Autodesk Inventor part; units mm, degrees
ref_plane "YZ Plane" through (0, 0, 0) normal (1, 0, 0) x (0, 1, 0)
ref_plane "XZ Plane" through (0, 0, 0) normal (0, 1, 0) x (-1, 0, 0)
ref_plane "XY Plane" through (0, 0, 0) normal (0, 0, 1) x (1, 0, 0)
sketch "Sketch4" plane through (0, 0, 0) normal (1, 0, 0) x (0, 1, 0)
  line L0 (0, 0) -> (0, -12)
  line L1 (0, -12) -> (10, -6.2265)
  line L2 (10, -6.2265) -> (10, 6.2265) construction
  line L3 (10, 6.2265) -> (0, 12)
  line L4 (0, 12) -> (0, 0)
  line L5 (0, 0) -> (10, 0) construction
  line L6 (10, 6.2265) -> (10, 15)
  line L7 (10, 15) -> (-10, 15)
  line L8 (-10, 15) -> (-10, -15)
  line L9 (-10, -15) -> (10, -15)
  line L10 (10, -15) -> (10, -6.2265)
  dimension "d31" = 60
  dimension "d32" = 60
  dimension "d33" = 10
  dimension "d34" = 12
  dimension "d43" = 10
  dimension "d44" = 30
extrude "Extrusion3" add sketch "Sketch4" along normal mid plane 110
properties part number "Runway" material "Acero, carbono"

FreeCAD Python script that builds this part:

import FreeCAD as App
import Part
import Sketcher

V = App.Vector
Q = App.Units.Quantity

doc = App.newDocument("Part")
body = doc.addObject("PartDesign::Body", "Body")

# Sketch on YZ plane
sketch1 = body.newObject("Sketcher::SketchObject", "Sketch")
sketch1.AttachmentSupport = (doc.getObject("YZ_Plane"), [""])
sketch1.MapMode = "FlatFace"
sketch1.addGeometry(Part.LineSegment(V(0, -12, 0), V(0, 12, 0)), False)
sketch1.addGeometry(Part.LineSegment(V(0, 12, 0), V(10, 6, 0)), False)
sketch1.addGeometry(Part.LineSegment(V(10, 6, 0), V(10, 15, 0)), False)
sketch1.addGeometry(Part.LineSegment(V(10, 15, 0), V(-10, 15, 0)), False)
sketch1.addGeometry(Part.LineSegment(V(-10, 15, 0), V(-10, -15, 0)), False)
sketch1.addGeometry(Part.LineSegment(V(-10, -15, 0), V(10, -15, 0)), False)
sketch1.addGeometry(Part.LineSegment(V(10, -15, 0), V(10, -6, 0)), False)
sketch1.addGeometry(Part.LineSegment(V(10, -6, 0), V(0, -12, 0)), False)
sketch1.addConstraint(Sketcher.Constraint("Coincident", 0, 2, 1, 1))
sketch1.addConstraint(Sketcher.Constraint("Coincident", 1, 2, 2, 1))
sketch1.addConstraint(Sketcher.Constraint("Coincident", 2, 2, 3, 1))
sketch1.addConstraint(Sketcher.Constraint("Coincident", 3, 2, 4, 1))
sketch1.addConstraint(Sketcher.Constraint("Coincident", 4, 2, 5, 1))
sketch1.addConstraint(Sketcher.Constraint("Coincident", 5, 2, 6, 1))
sketch1.addConstraint(Sketcher.Constraint("Coincident", 6, 2, 7, 1))
sketch1.addConstraint(Sketcher.Constraint("Coincident", 7, 2, 0, 1))
sketch1.addConstraint(Sketcher.Constraint("Vertical", 0))
sketch1.addConstraint(Sketcher.Constraint("Vertical", 2))
sketch1.addConstraint(Sketcher.Constraint("Horizontal", 3))
sketch1.addConstraint(Sketcher.Constraint("Vertical", 4))
sketch1.addConstraint(Sketcher.Constraint("Horizontal", 5))
sketch1.addConstraint(Sketcher.Constraint("Vertical", 6))
sketch1.addConstraint(Sketcher.Constraint("Symmetric", 2, 2, 4, 2, -1, 1))
sketch1.addConstraint(Sketcher.Constraint("Symmetric", 0, 2, 7, 2, -1, 1))
sketch1.addConstraint(Sketcher.Constraint("Symmetric", 1, 2, 6, 2, -1))
sketch1.addConstraint(Sketcher.Constraint("DistanceY", 4, 2, 4, 1, 30.0))
sketch1.addConstraint(Sketcher.Constraint("Angle", 1, Q("-30 deg")))
sketch1.addConstraint(Sketcher.Constraint("DistanceY", -1, 1, 0, 2, 12.0))
sketch1.addConstraint(Sketcher.Constraint("DistanceX", -1, 1, 1, 2, 10.0))
pad1 = body.newObject("PartDesign::Pad", "Pad")
pad1.Profile = sketch1
pad1.Length = 110
pad1.Midplane = True

doc.recompute()
